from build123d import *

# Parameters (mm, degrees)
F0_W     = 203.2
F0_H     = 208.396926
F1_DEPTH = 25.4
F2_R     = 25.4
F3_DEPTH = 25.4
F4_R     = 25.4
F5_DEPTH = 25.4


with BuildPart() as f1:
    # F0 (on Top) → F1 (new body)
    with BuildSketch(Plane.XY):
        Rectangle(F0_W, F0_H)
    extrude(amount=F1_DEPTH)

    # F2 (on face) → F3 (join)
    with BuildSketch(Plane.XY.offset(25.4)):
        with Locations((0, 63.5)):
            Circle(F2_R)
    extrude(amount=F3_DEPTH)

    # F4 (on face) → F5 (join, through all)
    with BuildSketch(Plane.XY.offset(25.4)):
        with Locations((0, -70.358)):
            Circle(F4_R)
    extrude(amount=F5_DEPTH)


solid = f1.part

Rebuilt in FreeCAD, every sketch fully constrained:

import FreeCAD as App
import Part
import Sketcher

V = App.Vector
Q = App.Units.Quantity


def add_polygon(sketch, points):
    """Adds a closed chain of lines whose ends are joined by coincident constraints."""
    first, n = sketch.GeometryCount, len(points)
    for a, b in zip(points, points[1:] + points[:1]):
        sketch.addGeometry(Part.LineSegment(App.Vector(*a, 0), App.Vector(*b, 0)), False)
    for i in range(n):
        sketch.addConstraint(Sketcher.Constraint("Coincident", first + i, 2, first + (i + 1) % n, 1))

doc = App.newDocument("Part")
body = doc.addObject("PartDesign::Body", "Body")

# Sketch on XY plane
sketch1 = body.newObject("Sketcher::SketchObject", "Sketch")
sketch1.AttachmentSupport = (doc.getObject("XY_Plane"), [""])
sketch1.MapMode = "FlatFace"
add_polygon(sketch1, [(-102, 104), (-102, -104), (102, -104), (102, 104)])  # lines 0-3
sketch1.addConstraint(Sketcher.Constraint("Vertical", 0))
sketch1.addConstraint(Sketcher.Constraint("Horizontal", 1))
sketch1.addConstraint(Sketcher.Constraint("Vertical", 2))
sketch1.addConstraint(Sketcher.Constraint("Horizontal", 3))
sketch1.addConstraint(Sketcher.Constraint("Symmetric", 0, 2, 2, 2, -1, 1))
sketch1.addConstraint(Sketcher.Constraint("DistanceX", 1, 1, 1, 2, Q("8 in")))
sketch1.addConstraint(Sketcher.Constraint("DistanceY", 0, 2, 0, 1, Q("208.396926 mm")))
pad1 = body.newObject("PartDesign::Pad", "Pad")
pad1.Profile = sketch1
pad1.Length = Q("1 in")

# Sketch on XY plane
sketch2 = body.newObject("Sketcher::SketchObject", "Sketch001")
sketch2.AttachmentSupport = (doc.getObject("XY_Plane"), [""])
sketch2.MapMode = "FlatFace"
sketch2.AttachmentOffset = App.Placement(V(0, 0, 1 * 25.4), App.Rotation())
sketch2.addGeometry(Part.Circle(V(0, 64, 0), V(0, 0, 1), 25), False)
sketch2.addConstraint(Sketcher.Constraint("PointOnObject", 0, 3, -2))
sketch2.addConstraint(Sketcher.Constraint("Diameter", 0, Q("2 in")))
sketch2.addConstraint(Sketcher.Constraint("DistanceY", -1, 1, 0, 3, Q("2.5 in")))
pad2 = body.newObject("PartDesign::Pad", "Pad001")
pad2.Profile = sketch2
pad2.Length = Q("1 in")

# Sketch on XY plane
sketch3 = body.newObject("Sketcher::SketchObject", "Sketch002")
sketch3.AttachmentSupport = (doc.getObject("XY_Plane"), [""])
sketch3.MapMode = "FlatFace"
sketch3.AttachmentOffset = App.Placement(V(0, 0, 1 * 25.4), App.Rotation())
sketch3.addGeometry(Part.Circle(V(0, -70, 0), V(0, 0, 1), 25), False)
sketch3.addConstraint(Sketcher.Constraint("PointOnObject", 0, 3, -2))
sketch3.addConstraint(Sketcher.Constraint("Diameter", 0, Q("2 in")))
sketch3.addConstraint(Sketcher.Constraint("DistanceY", 0, 3, -1, 1, Q("2.77 in")))
pad3 = body.newObject("PartDesign::Pad", "Pad002")
pad3.Profile = sketch3
pad3.Length = Q("1 in")

doc.recompute()
